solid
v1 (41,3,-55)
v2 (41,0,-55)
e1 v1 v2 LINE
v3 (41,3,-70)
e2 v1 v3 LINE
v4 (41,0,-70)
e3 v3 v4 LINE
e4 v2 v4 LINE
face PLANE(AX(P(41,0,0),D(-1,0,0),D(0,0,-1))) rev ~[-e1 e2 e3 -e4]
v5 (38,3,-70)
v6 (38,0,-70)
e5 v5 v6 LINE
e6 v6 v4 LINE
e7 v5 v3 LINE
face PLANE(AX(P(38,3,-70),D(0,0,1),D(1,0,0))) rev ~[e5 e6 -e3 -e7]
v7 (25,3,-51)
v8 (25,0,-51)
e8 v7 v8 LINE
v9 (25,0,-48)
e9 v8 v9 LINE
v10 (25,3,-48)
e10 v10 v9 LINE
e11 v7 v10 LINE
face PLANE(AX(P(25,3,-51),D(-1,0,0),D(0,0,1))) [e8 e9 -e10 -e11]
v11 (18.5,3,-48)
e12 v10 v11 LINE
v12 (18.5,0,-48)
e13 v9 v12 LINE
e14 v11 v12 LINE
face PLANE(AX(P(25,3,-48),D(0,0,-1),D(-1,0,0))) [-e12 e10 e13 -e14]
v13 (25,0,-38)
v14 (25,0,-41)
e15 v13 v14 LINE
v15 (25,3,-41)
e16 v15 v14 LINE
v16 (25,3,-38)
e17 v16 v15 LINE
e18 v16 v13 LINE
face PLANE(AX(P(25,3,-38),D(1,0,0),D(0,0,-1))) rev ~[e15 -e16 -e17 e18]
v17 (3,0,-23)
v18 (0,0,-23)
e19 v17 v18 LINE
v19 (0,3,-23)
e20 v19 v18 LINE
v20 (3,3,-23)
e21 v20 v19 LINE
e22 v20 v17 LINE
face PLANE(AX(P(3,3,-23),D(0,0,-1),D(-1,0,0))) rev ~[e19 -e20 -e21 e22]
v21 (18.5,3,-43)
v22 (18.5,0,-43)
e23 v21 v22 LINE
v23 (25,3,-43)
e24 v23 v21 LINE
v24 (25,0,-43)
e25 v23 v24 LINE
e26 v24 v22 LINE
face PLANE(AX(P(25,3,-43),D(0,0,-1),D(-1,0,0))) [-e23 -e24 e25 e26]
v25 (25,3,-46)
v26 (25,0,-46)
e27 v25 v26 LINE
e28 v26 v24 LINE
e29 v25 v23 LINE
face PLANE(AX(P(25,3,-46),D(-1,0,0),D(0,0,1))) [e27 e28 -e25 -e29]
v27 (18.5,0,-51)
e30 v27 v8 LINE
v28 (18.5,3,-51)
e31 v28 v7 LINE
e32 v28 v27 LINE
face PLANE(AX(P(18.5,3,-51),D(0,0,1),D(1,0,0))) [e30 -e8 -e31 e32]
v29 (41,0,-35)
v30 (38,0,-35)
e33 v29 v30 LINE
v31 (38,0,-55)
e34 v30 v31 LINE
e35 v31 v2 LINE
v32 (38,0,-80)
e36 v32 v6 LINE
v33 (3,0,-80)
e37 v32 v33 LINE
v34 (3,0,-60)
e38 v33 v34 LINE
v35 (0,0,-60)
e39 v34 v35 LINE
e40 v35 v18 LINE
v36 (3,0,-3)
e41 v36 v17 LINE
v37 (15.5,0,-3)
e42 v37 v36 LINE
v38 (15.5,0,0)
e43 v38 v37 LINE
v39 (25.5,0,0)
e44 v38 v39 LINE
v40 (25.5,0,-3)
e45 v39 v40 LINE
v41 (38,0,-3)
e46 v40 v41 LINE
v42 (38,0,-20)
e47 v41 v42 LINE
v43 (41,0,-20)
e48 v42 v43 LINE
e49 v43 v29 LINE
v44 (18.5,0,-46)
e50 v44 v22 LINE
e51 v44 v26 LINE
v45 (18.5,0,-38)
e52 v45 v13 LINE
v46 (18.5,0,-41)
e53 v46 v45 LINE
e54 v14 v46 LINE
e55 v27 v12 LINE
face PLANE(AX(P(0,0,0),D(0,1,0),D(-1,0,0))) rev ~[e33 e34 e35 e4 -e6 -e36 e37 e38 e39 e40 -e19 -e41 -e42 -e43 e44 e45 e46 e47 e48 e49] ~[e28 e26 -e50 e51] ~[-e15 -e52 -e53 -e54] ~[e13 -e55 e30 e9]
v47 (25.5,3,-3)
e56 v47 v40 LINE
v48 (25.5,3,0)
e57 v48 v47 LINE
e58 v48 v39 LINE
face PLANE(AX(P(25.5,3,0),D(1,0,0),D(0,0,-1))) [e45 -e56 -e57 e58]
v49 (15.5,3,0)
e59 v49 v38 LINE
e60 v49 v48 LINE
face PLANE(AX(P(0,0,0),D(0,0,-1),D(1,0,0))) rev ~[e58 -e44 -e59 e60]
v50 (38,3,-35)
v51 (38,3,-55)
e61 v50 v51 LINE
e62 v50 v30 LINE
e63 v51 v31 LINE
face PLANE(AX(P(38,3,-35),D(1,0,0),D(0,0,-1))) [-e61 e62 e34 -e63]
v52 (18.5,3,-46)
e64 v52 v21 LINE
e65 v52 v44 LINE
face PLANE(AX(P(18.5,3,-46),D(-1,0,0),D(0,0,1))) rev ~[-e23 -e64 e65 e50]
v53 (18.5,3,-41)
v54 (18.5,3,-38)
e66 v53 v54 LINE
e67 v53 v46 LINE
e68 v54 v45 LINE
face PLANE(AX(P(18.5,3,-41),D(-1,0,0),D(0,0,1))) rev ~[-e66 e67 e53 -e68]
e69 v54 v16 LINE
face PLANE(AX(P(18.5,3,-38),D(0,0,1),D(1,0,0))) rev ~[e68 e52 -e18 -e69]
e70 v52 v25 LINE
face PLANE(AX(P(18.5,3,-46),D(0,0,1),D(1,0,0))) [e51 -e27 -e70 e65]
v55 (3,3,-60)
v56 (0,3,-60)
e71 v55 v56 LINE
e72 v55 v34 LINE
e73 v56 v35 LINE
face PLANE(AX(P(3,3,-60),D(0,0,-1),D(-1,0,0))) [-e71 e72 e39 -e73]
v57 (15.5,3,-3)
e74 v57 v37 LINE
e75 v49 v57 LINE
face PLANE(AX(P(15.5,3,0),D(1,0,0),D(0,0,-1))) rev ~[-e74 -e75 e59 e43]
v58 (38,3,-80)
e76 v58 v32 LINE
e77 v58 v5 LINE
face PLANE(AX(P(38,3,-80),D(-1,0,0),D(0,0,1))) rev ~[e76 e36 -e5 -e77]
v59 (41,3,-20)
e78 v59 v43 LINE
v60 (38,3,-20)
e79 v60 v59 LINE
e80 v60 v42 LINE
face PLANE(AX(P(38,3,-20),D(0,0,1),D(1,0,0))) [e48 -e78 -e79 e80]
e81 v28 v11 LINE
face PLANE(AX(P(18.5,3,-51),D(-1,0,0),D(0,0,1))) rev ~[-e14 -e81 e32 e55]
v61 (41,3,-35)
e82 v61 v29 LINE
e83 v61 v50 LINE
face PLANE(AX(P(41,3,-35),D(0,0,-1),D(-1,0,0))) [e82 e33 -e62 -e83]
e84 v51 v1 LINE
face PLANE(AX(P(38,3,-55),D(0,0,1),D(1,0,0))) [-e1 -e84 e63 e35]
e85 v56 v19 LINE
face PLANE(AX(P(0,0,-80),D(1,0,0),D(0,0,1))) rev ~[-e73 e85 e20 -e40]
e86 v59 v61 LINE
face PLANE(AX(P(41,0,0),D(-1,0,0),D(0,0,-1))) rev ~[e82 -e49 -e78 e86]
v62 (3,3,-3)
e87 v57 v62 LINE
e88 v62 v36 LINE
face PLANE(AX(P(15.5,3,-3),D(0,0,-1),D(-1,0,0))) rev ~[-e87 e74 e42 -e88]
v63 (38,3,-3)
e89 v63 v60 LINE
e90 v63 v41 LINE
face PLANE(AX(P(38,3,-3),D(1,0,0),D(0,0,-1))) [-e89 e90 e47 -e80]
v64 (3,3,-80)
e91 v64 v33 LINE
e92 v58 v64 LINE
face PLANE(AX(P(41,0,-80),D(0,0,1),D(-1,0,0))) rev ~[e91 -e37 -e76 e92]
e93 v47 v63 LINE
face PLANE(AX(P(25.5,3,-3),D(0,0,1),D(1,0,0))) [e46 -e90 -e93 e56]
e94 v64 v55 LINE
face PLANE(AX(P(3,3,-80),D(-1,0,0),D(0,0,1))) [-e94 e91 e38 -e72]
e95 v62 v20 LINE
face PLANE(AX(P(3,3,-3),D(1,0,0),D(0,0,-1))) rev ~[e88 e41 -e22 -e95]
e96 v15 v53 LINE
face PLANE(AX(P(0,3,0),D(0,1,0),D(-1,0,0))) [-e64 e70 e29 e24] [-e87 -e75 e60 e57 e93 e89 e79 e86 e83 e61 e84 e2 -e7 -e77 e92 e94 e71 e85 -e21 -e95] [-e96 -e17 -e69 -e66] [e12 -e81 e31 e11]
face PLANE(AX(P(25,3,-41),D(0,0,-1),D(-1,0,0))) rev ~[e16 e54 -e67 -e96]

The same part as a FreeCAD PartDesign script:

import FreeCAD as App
import Part
import Sketcher

V = App.Vector


def add_polygon(sketch, points):
    """Adds a closed chain of lines whose ends are joined by coincident constraints."""
    first, n = sketch.GeometryCount, len(points)
    for a, b in zip(points, points[1:] + points[:1]):
        sketch.addGeometry(Part.LineSegment(App.Vector(*a, 0), App.Vector(*b, 0)), False)
    for i in range(n):
        sketch.addConstraint(Sketcher.Constraint("Coincident", first + i, 2, first + (i + 1) % n, 1))

doc = App.newDocument("Part")
params = doc.addObject("Spreadsheet::Sheet", "Params")
for row, (alias, value) in enumerate([
    ("sketch1_width", "41 mm"),
    ("sketch1_height", "80 mm"),
    ("pad1_length", "3 mm"),
    ("sketch2_width", "3 mm"),
    ("sketch2_height", "20 mm"),
    ("sketch2_height2", "10 mm"),
    ("sketch2_width2", "15.5 mm"),
    ("sketch3_height", "3 mm"),
    ("sketch3_width", "6.5 mm"),
], start=1):
    params.set(f"A{row}", alias)
    params.set(f"B{row}", "=" + value)
    params.setAlias(f"B{row}", alias)

body = doc.addObject("PartDesign::Body", "Body")

sketch1 = body.newObject("Sketcher::SketchObject", "Sketch")
sketch1.AttachmentSupport = (doc.getObject("XZ_Plane"), [""])
sketch1.MapMode = "FlatFace"
add_polygon(sketch1, [(0, -80), (0, 0), (41, 0), (41, -80)])
sketch1.addConstraint([
    Sketcher.Constraint("Vertical", 0),
    Sketcher.Constraint("Horizontal", 1),
    Sketcher.Constraint("Vertical", 2),
    Sketcher.Constraint("Horizontal", 3),
    Sketcher.Constraint("Coincident", 0, 2, -1, 1),
    Sketcher.Constraint("DistanceX", 1, 1, 1, 2, 41.0),
    Sketcher.Constraint("DistanceY", 0, 1, 0, 2, 80.0),
])
sketch1.setExpression("Constraints[9]", "Params.sketch1_width")
sketch1.setExpression("Constraints[10]", "Params.sketch1_height")
pad1 = body.newObject("PartDesign::Pad", "Pad")
pad1.Profile = sketch1
pad1.setExpression("Length", "Params.pad1_length")
pad1.Reversed = True

sketch2 = body.newObject("Sketcher::SketchObject", "Sketch001")
sketch2.AttachmentSupport = (doc.getObject("XZ_Plane"), [""])
sketch2.MapMode = "FlatFace"
sketch2.AttachmentOffset = App.Placement(V(0, 0, -3), App.Rotation())
add_polygon(sketch2, [(0, 0), (15.5, 0), (15.5, -3), (3, -3), (3, -23), (0, -23)])
add_polygon(sketch2, [(3, -60), (3, -80), (0, -80), (0, -60)])
add_polygon(sketch2, [(38, -70), (41, -70), (41, -80), (38, -80)])
add_polygon(sketch2, [(38, -35), (41, -35), (41, -55), (38, -55)])
add_polygon(sketch2, [(25.5, -3), (25.5, 0), (41, 0), (41, -20), (38, -20), (38, -3)])
sketch2.addConstraint([
    Sketcher.Constraint("Horizontal", 0),
    Sketcher.Constraint("Vertical", 1),
    Sketcher.Constraint("Horizontal", 2),
    Sketcher.Constraint("Vertical", 3),
    Sketcher.Constraint("Horizontal", 4),
    Sketcher.Constraint("Vertical", 5),
    Sketcher.Constraint("Vertical", 6),
    Sketcher.Constraint("Horizontal", 7),
    Sketcher.Constraint("Vertical", 8),
    Sketcher.Constraint("Horizontal", 9),
    Sketcher.Constraint("Horizontal", 10),
    Sketcher.Constraint("Vertical", 11),
    Sketcher.Constraint("Horizontal", 12),
    Sketcher.Constraint("Vertical", 13),
    Sketcher.Constraint("Horizontal", 14),
    Sketcher.Constraint("Vertical", 15),
    Sketcher.Constraint("Horizontal", 16),
    Sketcher.Constraint("Vertical", 17),
    Sketcher.Constraint("Vertical", 18),
    Sketcher.Constraint("Horizontal", 19),
    Sketcher.Constraint("Vertical", 20),
    Sketcher.Constraint("Horizontal", 21),
    Sketcher.Constraint("Vertical", 22),
    Sketcher.Constraint("Horizontal", 23),
    Sketcher.Constraint("Coincident", 5, 2, -1, 1),
    Sketcher.Constraint("PointOnObject", 7, 2, -2),
    Sketcher.Constraint("PointOnObject", 18, 2, -1),
    Sketcher.Constraint("Horizontal", 7, 2, 11, 2),
    Sketcher.Constraint("Horizontal", 2, 2, 22, 2),
    Sketcher.Constraint("Vertical", 3, 2, 6, 2),
    Sketcher.Constraint("Vertical", 11, 2, 14, 2),
    Sketcher.Constraint("Vertical", 13, 2, 16, 2),
    Sketcher.Constraint("Vertical", 15, 2, 19, 2),
    Sketcher.Constraint("Vertical", 17, 2, 21, 2),
    Sketcher.Constraint("Equal", 9, 10),
    Sketcher.Constraint("Equal", 0, 19),
    Sketcher.Constraint("Equal", 21, 1),
    Sketcher.Constraint("Equal", 3, 6),
    Sketcher.Constraint("Equal", 8, 15),
    Sketcher.Constraint("Equal", 17, 20),
    Sketcher.Constraint("DistanceX", 4, 2, 4, 1, 3.0),
    Sketcher.Constraint("DistanceY", 3, 2, 3, 1, 20.0),
    Sketcher.Constraint("DistanceY", 11, 2, 11, 1, 10.0),
    Sketcher.Constraint("DistanceX", 0, 1, 0, 2, 15.5),
    Sketcher.Constraint("DistanceY", 10, 2, 15, 2, 15.0),
    Sketcher.Constraint("DistanceX", 0, 2, 18, 2, 10.0),
    Sketcher.Constraint("DistanceY", 14, 2, 20, 2, 15.0),
])
sketch2.setExpression("Constraints[64]", "Params.sketch2_width")
sketch2.setExpression("Constraints[65]", "Params.sketch2_height")
sketch2.setExpression("Constraints[66]", "Params.sketch2_height2")
sketch2.setExpression("Constraints[67]", "Params.sketch2_width2")
pocket1 = body.newObject("PartDesign::Pocket", "Pocket")
pocket1.Profile = sketch2
pocket1.Type = "ThroughAll"
pocket1.Reversed = True

sketch3 = body.newObject("Sketcher::SketchObject", "Sketch002")
sketch3.AttachmentSupport = (doc.getObject("XZ_Plane"), [""])
sketch3.MapMode = "FlatFace"
sketch3.AttachmentOffset = App.Placement(V(0, 0, -3), App.Rotation())
add_polygon(sketch3, [(25, -51), (18.5, -51), (18.5, -48), (25, -48)])
add_polygon(sketch3, [(18.5, -41), (18.5, -38), (25, -38), (25, -41)])
add_polygon(sketch3, [(25, -46), (18.5, -46), (18.5, -43), (25, -43)])
sketch3.addConstraint([
    Sketcher.Constraint("Horizontal", 0),
    Sketcher.Constraint("Vertical", 1),
    Sketcher.Constraint("Horizontal", 2),
    Sketcher.Constraint("Vertical", 3),
    Sketcher.Constraint("Vertical", 4),
    Sketcher.Constraint("Horizontal", 5),
    Sketcher.Constraint("Vertical", 6),
    Sketcher.Constraint("Horizontal", 7),
    Sketcher.Constraint("Horizontal", 8),
    Sketcher.Constraint("Vertical", 9),
    Sketcher.Constraint("Horizontal", 10),
    Sketcher.Constraint("Vertical", 11),
    Sketcher.Constraint("Vertical", 1, 2, 4, 2),
    Sketcher.Constraint("Vertical", 3, 2, 5, 2),
    Sketcher.Constraint("Vertical", 7, 2, 8, 2),
    Sketcher.Constraint("Vertical", 6, 2, 10, 2),
    Sketcher.Constraint("Equal", 3, 4),
    Sketcher.Constraint("Equal", 6, 9),
    Sketcher.Constraint("DistanceY", 1, 1, 1, 2, 3.0),
    Sketcher.Constraint("DistanceX", 0, 2, 0, 1, 6.5),
    Sketcher.Constraint("DistanceY", 4, 2, -1, 1, 38.0),
    Sketcher.Constraint("DistanceY", 0, 2, 4, 2, 13.0),
    Sketcher.Constraint("DistanceY", 1, 2, 8, 2, 2.0),
    Sketcher.Constraint("DistanceX", -1, 1, 0, 2, 18.5),
])
sketch3.setExpression("Constraints[30]", "Params.sketch3_height")
sketch3.setExpression("Constraints[31]", "Params.sketch3_width")
pocket2 = body.newObject("PartDesign::Pocket", "Pocket001")
pocket2.Profile = sketch3
pocket2.Type = "ThroughAll"
pocket2.Reversed = True

doc.recompute()
